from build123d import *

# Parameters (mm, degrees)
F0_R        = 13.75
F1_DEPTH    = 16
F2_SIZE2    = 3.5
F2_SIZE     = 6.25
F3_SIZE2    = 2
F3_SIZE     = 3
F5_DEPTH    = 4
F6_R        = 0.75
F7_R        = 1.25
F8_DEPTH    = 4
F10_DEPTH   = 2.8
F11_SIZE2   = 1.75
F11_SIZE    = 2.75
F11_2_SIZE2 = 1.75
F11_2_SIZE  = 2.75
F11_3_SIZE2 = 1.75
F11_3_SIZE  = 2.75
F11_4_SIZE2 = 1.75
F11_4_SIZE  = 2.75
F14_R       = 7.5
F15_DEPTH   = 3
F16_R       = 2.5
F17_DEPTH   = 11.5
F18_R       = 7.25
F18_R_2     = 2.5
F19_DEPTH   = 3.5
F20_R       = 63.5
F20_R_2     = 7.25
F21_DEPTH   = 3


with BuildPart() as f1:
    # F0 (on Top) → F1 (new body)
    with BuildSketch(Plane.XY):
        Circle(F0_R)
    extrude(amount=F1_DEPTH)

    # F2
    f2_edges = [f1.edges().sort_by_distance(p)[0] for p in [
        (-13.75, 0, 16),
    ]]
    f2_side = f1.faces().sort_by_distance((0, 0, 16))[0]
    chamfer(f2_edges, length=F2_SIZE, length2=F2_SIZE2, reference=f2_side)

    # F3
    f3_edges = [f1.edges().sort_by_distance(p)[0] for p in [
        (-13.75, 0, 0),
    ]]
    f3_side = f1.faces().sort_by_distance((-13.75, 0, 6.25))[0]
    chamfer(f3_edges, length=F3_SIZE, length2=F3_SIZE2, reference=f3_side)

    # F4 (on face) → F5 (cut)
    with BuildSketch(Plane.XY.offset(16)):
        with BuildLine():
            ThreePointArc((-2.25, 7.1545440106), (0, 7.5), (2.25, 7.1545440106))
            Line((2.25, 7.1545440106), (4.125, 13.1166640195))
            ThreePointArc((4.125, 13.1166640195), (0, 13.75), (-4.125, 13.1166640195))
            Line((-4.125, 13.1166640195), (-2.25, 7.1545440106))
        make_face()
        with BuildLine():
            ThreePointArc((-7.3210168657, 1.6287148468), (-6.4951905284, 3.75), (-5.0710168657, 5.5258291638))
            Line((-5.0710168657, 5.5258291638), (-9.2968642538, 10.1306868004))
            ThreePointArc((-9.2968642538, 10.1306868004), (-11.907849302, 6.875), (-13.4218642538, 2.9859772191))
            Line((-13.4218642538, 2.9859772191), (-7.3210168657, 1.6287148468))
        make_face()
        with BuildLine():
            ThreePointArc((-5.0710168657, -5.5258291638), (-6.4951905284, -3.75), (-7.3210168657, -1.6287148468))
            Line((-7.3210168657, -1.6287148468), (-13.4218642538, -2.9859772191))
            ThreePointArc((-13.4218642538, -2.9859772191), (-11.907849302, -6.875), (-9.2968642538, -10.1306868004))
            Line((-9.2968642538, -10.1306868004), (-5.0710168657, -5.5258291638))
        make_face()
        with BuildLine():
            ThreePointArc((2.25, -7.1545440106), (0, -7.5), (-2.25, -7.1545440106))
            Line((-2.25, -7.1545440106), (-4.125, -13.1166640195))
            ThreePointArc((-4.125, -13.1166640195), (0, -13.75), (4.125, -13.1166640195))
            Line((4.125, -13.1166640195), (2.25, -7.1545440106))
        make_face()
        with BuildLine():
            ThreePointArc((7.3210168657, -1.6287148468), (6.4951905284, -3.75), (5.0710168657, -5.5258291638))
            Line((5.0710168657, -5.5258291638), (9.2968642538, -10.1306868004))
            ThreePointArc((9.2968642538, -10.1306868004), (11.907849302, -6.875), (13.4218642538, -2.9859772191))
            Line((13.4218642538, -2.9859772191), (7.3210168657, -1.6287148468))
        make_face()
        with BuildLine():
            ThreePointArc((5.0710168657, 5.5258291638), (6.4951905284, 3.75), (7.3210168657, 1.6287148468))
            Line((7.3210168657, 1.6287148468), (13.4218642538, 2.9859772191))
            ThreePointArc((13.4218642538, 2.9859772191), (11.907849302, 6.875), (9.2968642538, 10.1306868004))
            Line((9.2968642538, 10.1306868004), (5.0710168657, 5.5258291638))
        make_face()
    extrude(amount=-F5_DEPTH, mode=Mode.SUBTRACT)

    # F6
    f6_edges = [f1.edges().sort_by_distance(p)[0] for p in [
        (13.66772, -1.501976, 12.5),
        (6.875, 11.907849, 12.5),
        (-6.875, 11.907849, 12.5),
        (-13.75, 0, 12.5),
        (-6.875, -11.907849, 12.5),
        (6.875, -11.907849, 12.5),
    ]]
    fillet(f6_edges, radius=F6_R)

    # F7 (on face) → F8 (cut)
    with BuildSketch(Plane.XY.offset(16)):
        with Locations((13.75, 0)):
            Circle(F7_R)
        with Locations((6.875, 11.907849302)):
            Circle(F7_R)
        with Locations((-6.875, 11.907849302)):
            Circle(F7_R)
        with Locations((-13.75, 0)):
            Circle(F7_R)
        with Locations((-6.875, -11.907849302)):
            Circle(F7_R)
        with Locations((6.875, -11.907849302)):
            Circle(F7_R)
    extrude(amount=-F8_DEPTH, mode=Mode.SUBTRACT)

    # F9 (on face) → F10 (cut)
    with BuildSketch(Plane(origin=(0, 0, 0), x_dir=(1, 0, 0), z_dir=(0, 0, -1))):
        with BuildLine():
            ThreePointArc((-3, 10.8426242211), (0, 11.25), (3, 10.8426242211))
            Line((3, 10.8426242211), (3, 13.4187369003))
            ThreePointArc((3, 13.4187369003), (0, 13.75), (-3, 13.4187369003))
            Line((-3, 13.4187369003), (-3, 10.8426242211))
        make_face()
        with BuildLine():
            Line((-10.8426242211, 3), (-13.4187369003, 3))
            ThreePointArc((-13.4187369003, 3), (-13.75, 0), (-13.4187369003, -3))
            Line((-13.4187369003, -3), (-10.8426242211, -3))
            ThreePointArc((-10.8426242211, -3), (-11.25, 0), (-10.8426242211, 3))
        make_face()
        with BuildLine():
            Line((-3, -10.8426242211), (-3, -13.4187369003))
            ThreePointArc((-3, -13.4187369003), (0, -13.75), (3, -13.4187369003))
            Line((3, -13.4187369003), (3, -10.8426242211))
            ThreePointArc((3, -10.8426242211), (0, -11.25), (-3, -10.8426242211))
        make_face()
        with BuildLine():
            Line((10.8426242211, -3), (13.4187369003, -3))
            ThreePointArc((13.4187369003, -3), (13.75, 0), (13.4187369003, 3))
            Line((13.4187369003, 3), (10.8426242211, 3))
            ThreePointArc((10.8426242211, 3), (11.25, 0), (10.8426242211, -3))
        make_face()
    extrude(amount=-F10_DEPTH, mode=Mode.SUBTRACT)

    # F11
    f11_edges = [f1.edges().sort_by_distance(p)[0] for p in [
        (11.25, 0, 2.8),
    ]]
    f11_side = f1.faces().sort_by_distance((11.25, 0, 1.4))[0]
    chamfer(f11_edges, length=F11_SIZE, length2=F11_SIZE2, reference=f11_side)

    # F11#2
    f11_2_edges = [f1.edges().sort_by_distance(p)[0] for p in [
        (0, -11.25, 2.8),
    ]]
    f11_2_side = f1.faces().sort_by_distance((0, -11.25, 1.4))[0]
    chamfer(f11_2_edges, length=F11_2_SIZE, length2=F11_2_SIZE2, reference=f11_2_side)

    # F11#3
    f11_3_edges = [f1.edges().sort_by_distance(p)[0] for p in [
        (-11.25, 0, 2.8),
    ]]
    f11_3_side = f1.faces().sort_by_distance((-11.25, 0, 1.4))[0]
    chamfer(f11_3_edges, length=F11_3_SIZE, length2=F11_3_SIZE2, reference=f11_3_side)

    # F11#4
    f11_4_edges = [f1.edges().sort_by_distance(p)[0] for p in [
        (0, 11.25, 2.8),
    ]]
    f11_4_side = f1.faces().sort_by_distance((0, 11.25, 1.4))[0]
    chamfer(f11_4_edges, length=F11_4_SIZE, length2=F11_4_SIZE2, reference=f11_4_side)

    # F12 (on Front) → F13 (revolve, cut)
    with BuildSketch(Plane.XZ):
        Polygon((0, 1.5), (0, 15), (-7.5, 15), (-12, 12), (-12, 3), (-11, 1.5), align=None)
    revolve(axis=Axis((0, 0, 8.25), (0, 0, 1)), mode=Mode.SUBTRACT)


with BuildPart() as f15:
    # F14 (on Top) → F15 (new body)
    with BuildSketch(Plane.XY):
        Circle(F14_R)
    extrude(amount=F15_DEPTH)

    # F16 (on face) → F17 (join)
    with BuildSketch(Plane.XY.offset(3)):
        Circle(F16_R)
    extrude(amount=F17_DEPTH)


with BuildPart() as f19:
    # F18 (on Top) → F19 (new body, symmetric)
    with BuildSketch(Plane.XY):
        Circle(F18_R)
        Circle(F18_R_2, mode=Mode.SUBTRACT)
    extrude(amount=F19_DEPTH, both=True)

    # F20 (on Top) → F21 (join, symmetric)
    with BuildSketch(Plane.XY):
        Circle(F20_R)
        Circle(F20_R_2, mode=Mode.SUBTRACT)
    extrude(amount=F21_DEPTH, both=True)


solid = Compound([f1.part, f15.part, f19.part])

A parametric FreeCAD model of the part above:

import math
import FreeCAD as App
import Part
import Sketcher

V = App.Vector


def edges_at(feature, points):
    """Names of the edges that pass closest to the given points."""
    edges = feature.Shape.Edges
    near = lambda p: min(range(len(edges)), key=lambda i: edges[i].distToShape(Part.Vertex(*p))[0])
    return sorted({f"Edge{near(p) + 1}" for p in points})

doc = App.newDocument("Part")
body = doc.addObject("PartDesign::Body", "Body")

# Sketch on XY plane
sketch1 = doc.addObject("Sketcher::SketchObject", "Sketch")
body.addObject(sketch1)
sketch1.AttachmentSupport = (doc.XY_Plane, [""])
sketch1.MapMode = "FlatFace"
sketch1.addGeometry(Part.Circle(V(0, 0, 0), V(0, 0, 1), 14), False)
sketch1.addConstraint([
    Sketcher.Constraint("Coincident", 0, 3, -1, 1),
    Sketcher.Constraint("Diameter", 0, 27.5),
])
pad1 = doc.addObject("PartDesign::Pad", "Pad")
body.addObject(pad1)
pad1.Profile = sketch1
pad1.Length = 16
doc.recompute()

chamfer = doc.addObject("PartDesign::Chamfer", "Chamfer")
body.addObject(chamfer)
chamfer.Base = (pad1, edges_at(pad1, [(-13.75, 0, 16)]))
chamfer.ChamferType = "Two distances"
chamfer.Size = 6.25
chamfer.Size2 = 3.5
chamfer.FlipDirection = True
doc.recompute()

chamfer2 = doc.addObject("PartDesign::Chamfer", "Chamfer001")
body.addObject(chamfer2)
chamfer2.Base = (chamfer, edges_at(chamfer, [(-13.75, 0, 0)]))
chamfer2.ChamferType = "Two distances"
chamfer2.Size = 3
chamfer2.Size2 = 2

# Sketch on XY plane
sketch2 = doc.addObject("Sketcher::SketchObject", "Sketch001")
body.addObject(sketch2)
sketch2.AttachmentSupport = (doc.XY_Plane, [""])
sketch2.MapMode = "FlatFace"
sketch2.AttachmentOffset = App.Placement(V(0, 0, 16), App.Rotation())
sketch2.addGeometry([
    Part.ArcOfCircle(Part.Circle(V(0, 0, 0), V(0, 0, 1), 7.5), math.radians(73), math.radians(107)),  # 0
    Part.LineSegment(V(2.2, 7.2, 0), V(4.1, 13.1, 0)),  # 1
    Part.ArcOfCircle(Part.Circle(V(0, 0, 0), V(0, 0, 1), 13.8), math.radians(73), math.radians(107)),  # 2
    Part.LineSegment(V(-4.1, 13.1, 0), V(-2.2, 7.2, 0)),  # 3
    Part.ArcOfCircle(Part.Circle(V(0, 0, 0), V(0, 0, 1), 7.5), math.radians(133), math.radians(167)),  # 4
    Part.LineSegment(V(-5.1, 5.5, 0), V(-9.3, 10.1, 0)),  # 5
    Part.ArcOfCircle(Part.Circle(V(0, 0, 0), V(0, 0, 1), 13.8), math.radians(133), math.radians(167)),  # 6
    Part.LineSegment(V(-13.4, 3, 0), V(-7.3, 1.6, 0)),  # 7
    Part.ArcOfCircle(Part.Circle(V(0, 0, 0), V(0, 0, 1), 7.5), math.radians(-167), math.radians(-133)),  # 8
    Part.LineSegment(V(-7.3, -1.6, 0), V(-13.4, -3, 0)),  # 9
    Part.ArcOfCircle(Part.Circle(V(0, 0, 0), V(0, 0, 1), 13.8), math.radians(-167), math.radians(-133)),  # 10
    Part.LineSegment(V(-9.3, -10.1, 0), V(-5.1, -5.5, 0)),  # 11
    Part.ArcOfCircle(Part.Circle(V(0, 0, 0), V(0, 0, 1), 7.5), math.radians(-107), math.radians(-73)),  # 12
    Part.LineSegment(V(-2.2, -7.2, 0), V(-4.1, -13.1, 0)),  # 13
    Part.ArcOfCircle(Part.Circle(V(0, 0, 0), V(0, 0, 1), 13.8), math.radians(-107), math.radians(-73)),  # 14
    Part.LineSegment(V(4.1, -13.1, 0), V(2.2, -7.2, 0)),  # 15
    Part.ArcOfCircle(Part.Circle(V(0, 0, 0), V(0, 0, 1), 7.5), math.radians(-47), math.radians(-13)),  # 16
    Part.LineSegment(V(5.1, -5.5, 0), V(9.3, -10.1, 0)),  # 17
    Part.ArcOfCircle(Part.Circle(V(0, 0, 0), V(0, 0, 1), 13.8), math.radians(-47), math.radians(-13)),  # 18
    Part.LineSegment(V(13.4, -3, 0), V(7.3, -1.6, 0)),  # 19
    Part.ArcOfCircle(Part.Circle(V(0, 0, 0), V(0, 0, 1), 7.5), math.radians(13), math.radians(47)),  # 20
    Part.LineSegment(V(7.3, 1.6, 0), V(13.4, 3, 0)),  # 21
    Part.ArcOfCircle(Part.Circle(V(0, 0, 0), V(0, 0, 1), 13.8), math.radians(13), math.radians(47)),  # 22
    Part.LineSegment(V(9.3, 10.1, 0), V(5.1, 5.5, 0)),  # 23
], False)
sketch2.addConstraint([
    Sketcher.Constraint("Coincident", 0, 1, 1, 1),
    Sketcher.Constraint("Coincident", 1, 2, 2, 1),
    Sketcher.Constraint("Coincident", 2, 2, 3, 1),
    Sketcher.Constraint("Coincident", 3, 2, 0, 2),
    Sketcher.Constraint("Coincident", 4, 1, 5, 1),
    Sketcher.Constraint("Coincident", 5, 2, 6, 1),
    Sketcher.Constraint("Coincident", 6, 2, 7, 1),
    Sketcher.Constraint("Coincident", 7, 2, 4, 2),
    Sketcher.Constraint("Coincident", 8, 1, 9, 1),
    Sketcher.Constraint("Coincident", 9, 2, 10, 1),
    Sketcher.Constraint("Coincident", 10, 2, 11, 1),
    Sketcher.Constraint("Coincident", 11, 2, 8, 2),
    Sketcher.Constraint("Coincident", 12, 1, 13, 1),
    Sketcher.Constraint("Coincident", 13, 2, 14, 1),
    Sketcher.Constraint("Coincident", 14, 2, 15, 1),
    Sketcher.Constraint("Coincident", 15, 2, 12, 2),
    Sketcher.Constraint("Coincident", 16, 1, 17, 1),
    Sketcher.Constraint("Coincident", 17, 2, 18, 1),
    Sketcher.Constraint("Coincident", 18, 2, 19, 1),
    Sketcher.Constraint("Coincident", 19, 2, 16, 2),
    Sketcher.Constraint("Coincident", 20, 1, 21, 1),
    Sketcher.Constraint("Coincident", 21, 2, 22, 1),
    Sketcher.Constraint("Coincident", 22, 2, 23, 1),
    Sketcher.Constraint("Coincident", 23, 2, 20, 2),
    Sketcher.Constraint("Coincident", 0, 3, -1, 1),
    Sketcher.Constraint("Coincident", 2, 3, -1, 1),
    Sketcher.Constraint("Coincident", 4, 3, -1, 1),
    Sketcher.Constraint("Coincident", 6, 3, -1, 1),
    Sketcher.Constraint("Coincident", 8, 3, -1, 1),
    Sketcher.Constraint("Coincident", 10, 3, -1, 1),
    Sketcher.Constraint("Coincident", 12, 3, -1, 1),
    Sketcher.Constraint("Coincident", 14, 3, -1, 1),
    Sketcher.Constraint("Coincident", 16, 3, -1, 1),
    Sketcher.Constraint("Coincident", 18, 3, -1, 1),
    Sketcher.Constraint("Coincident", 20, 3, -1, 1),
    Sketcher.Constraint("Coincident", 22, 3, -1, 1),
    Sketcher.Constraint("Equal", 0, 4),
    Sketcher.Constraint("Equal", 2, 6),
    Sketcher.Constraint("Equal", 4, 8),
    Sketcher.Constraint("Equal", 6, 10),
    Sketcher.Constraint("Equal", 8, 12),
    Sketcher.Constraint("Equal", 10, 14),
    Sketcher.Constraint("Equal", 12, 16),
    Sketcher.Constraint("Equal", 14, 18),
    Sketcher.Constraint("Equal", 16, 20),
    Sketcher.Constraint("Equal", 18, 22),
    Sketcher.Constraint("Parallel", 1, 13),
    Sketcher.Constraint("Parallel", 3, 15),
    Sketcher.Constraint("Parallel", 5, 17),
    Sketcher.Constraint("Parallel", 7, 19),
    Sketcher.Constraint("Parallel", 9, 21),
    Sketcher.Constraint("Parallel", 11, 23),
    Sketcher.Constraint("Horizontal", 1, 2, 2, 2),
    Sketcher.Constraint("Horizontal", 0, 1, 3, 2),
    Sketcher.Constraint("Horizontal", 13, 2, 14, 2),
    Sketcher.Constraint("Horizontal", 11, 2, 16, 1),
    Sketcher.Constraint("Horizontal", 10, 2, 17, 2),
    Sketcher.Constraint("Horizontal", 9, 2, 18, 2),
    Sketcher.Constraint("Horizontal", 8, 1, 19, 2),
    Sketcher.Constraint("Horizontal", 7, 2, 20, 1),
    Sketcher.Constraint("Horizontal", 5, 2, 22, 2),
    Sketcher.Constraint("Vertical", 7, 2, 8, 1),
    Sketcher.Constraint("Vertical", 5, 2, 10, 2),
    Sketcher.Constraint("Vertical", 3, 2, 12, 1),
    Sketcher.Constraint("Radius", 0, 7.5),
    Sketcher.Constraint("Radius", 2, 13.75),
    Sketcher.Constraint("DistanceX", 3, 2, 0, 1, 4.5),
    Sketcher.Constraint("DistanceX", 2, 2, 1, 2, 8.25),
    Sketcher.Constraint("DistanceX", 7, 2, 4, 1, 2.25),
    Sketcher.Constraint("DistanceX", 6, 2, 5, 2, 4.125),
    Sketcher.Constraint("DistanceY", 10, 2, 7, 2, 11.759402),
    Sketcher.Constraint("DistanceY", -1, 1, 4, 1, 5.525829),
])
pocket1 = doc.addObject("PartDesign::Pocket", "Pocket")
body.addObject(pocket1)
pocket1.Profile = sketch2
pocket1.Length = 4
doc.recompute()

fillet = doc.addObject("PartDesign::Fillet", "Fillet")
body.addObject(fillet)
fillet.Base = (pocket1, edges_at(pocket1, [
    (13.668, -1.502, 12.5),
    (6.875, 11.908, 12.5),
    (-6.875, 11.908, 12.5),
    (-13.75, 0, 12.5),
    (-6.875, -11.908, 12.5),
    (6.875, -11.908, 12.5),
]))
fillet.Radius = 0.75

# Sketch on XY plane
sketch3 = doc.addObject("Sketcher::SketchObject", "Sketch002")
body.addObject(sketch3)
sketch3.AttachmentSupport = (doc.XY_Plane, [""])
sketch3.MapMode = "FlatFace"
sketch3.AttachmentOffset = App.Placement(V(0, 0, 16), App.Rotation())
sketch3.addGeometry([
    Part.Circle(V(13.8, 0, 0), V(0, 0, 1), 1.2),  # 0
    Part.Circle(V(6.9, 11.9, 0), V(0, 0, 1), 1.2),  # 1
    Part.Circle(V(-6.9, 11.9, 0), V(0, 0, 1), 1.2),  # 2
    Part.Circle(V(-13.8, 0, 0), V(0, 0, 1), 1.2),  # 3
    Part.Circle(V(-6.9, -11.9, 0), V(0, 0, 1), 1.2),  # 4
    Part.Circle(V(6.9, -11.9, 0), V(0, 0, 1), 1.2),  # 5
], False)
sketch3.addConstraint([
    Sketcher.Constraint("Equal", 0, 1),
    Sketcher.Constraint("Equal", 1, 2),
    Sketcher.Constraint("Equal", 2, 3),
    Sketcher.Constraint("Equal", 3, 4),
    Sketcher.Constraint("Equal", 4, 5),
    Sketcher.Constraint("Symmetric", 0, 3, 3, 3, -1, 1),
    Sketcher.Constraint("Symmetric", 1, 3, 4, 3, -1, 1),
    Sketcher.Constraint("Symmetric", 2, 3, 5, 3, -1, 1),
    Sketcher.Constraint("Symmetric", 1, 3, 2, 3, -2),
    Sketcher.Constraint("PointOnObject", 0, 3, -1),
    Sketcher.Constraint("Diameter", 0, 2.5),
    Sketcher.Constraint("DistanceX", 3, 3, 0, 3, 27.5),
    Sketcher.Constraint("DistanceX", 2, 3, 1, 3, 13.75),
    Sketcher.Constraint("DistanceY", 4, 3, 2, 3, 23.815699),
])
pocket2 = doc.addObject("PartDesign::Pocket", "Pocket001")
body.addObject(pocket2)
pocket2.Profile = sketch3
pocket2.Length = 4

# Sketch on XY plane
sketch4 = doc.addObject("Sketcher::SketchObject", "Sketch003")
body.addObject(sketch4)
sketch4.AttachmentSupport = (doc.XY_Plane, [""])
sketch4.MapMode = "FlatFace"
sketch4.addGeometry([
    Part.ArcOfCircle(Part.Circle(V(0, 0, 0), V(0, 0, 1), 11.2), math.radians(-105), math.radians(-75)),  # 0
    Part.LineSegment(V(3, -10.8, 0), V(3, -13.4, 0)),  # 1
    Part.ArcOfCircle(Part.Circle(V(0, 0, 0), V(0, 0, 1), 13.7), math.radians(-103), math.radians(-77)),  # 2
    Part.LineSegment(V(-3, -13.4, 0), V(-3, -10.8, 0)),  # 3
    Part.LineSegment(V(-10.8, -3, 0), V(-13.4, -3, 0)),  # 4
    Part.ArcOfCircle(Part.Circle(V(0, 0, 0), V(0, 0, 1), 13.7), math.radians(167), math.radians(193)),  # 5
    Part.LineSegment(V(-13.4, 3, 0), V(-10.8, 3, 0)),  # 6
    Part.ArcOfCircle(Part.Circle(V(0, 0, 0), V(0, 0, 1), 11.2), math.radians(165), math.radians(195)),  # 7
    Part.LineSegment(V(-3, 10.8, 0), V(-3, 13.4, 0)),  # 8
    Part.ArcOfCircle(Part.Circle(V(0, 0, 0), V(0, 0, 1), 13.7), math.radians(77), math.radians(103)),  # 9
    Part.LineSegment(V(3, 13.4, 0), V(3, 10.8, 0)),  # 10
    Part.ArcOfCircle(Part.Circle(V(0, 0, 0), V(0, 0, 1), 11.2), math.radians(75), math.radians(105)),  # 11
    Part.LineSegment(V(10.8, 3, 0), V(13.4, 3, 0)),  # 12
    Part.ArcOfCircle(Part.Circle(V(0, 0, 0), V(0, 0, 1), 13.7), math.radians(-13), math.radians(13)),  # 13
    Part.LineSegment(V(13.4, -3, 0), V(10.8, -3, 0)),  # 14
    Part.ArcOfCircle(Part.Circle(V(0, 0, 0), V(0, 0, 1), 11.2), math.radians(-15), math.radians(15)),  # 15
], False)
sketch4.addConstraint([
    Sketcher.Constraint("Coincident", 0, 2, 1, 1),
    Sketcher.Constraint("Coincident", 1, 2, 2, 2),
    Sketcher.Constraint("Coincident", 2, 1, 3, 1),
    Sketcher.Constraint("Coincident", 3, 2, 0, 1),
    Sketcher.Constraint("Coincident", 4, 2, 5, 2),
    Sketcher.Constraint("Coincident", 5, 1, 6, 1),
    Sketcher.Constraint("Coincident", 6, 2, 7, 1),
    Sketcher.Constraint("Coincident", 7, 2, 4, 1),
    Sketcher.Constraint("Coincident", 8, 2, 9, 2),
    Sketcher.Constraint("Coincident", 9, 1, 10, 1),
    Sketcher.Constraint("Coincident", 10, 2, 11, 1),
    Sketcher.Constraint("Coincident", 11, 2, 8, 1),
    Sketcher.Constraint("Coincident", 12, 2, 13, 2),
    Sketcher.Constraint("Coincident", 13, 1, 14, 1),
    Sketcher.Constraint("Coincident", 14, 2, 15, 1),
    Sketcher.Constraint("Coincident", 15, 2, 12, 1),
    Sketcher.Constraint("Vertical", 1),
    Sketcher.Constraint("Vertical", 3),
    Sketcher.Constraint("Horizontal", 4),
    Sketcher.Constraint("Horizontal", 6),
    Sketcher.Constraint("Vertical", 8),
    Sketcher.Constraint("Vertical", 10),
    Sketcher.Constraint("Horizontal", 12),
    Sketcher.Constraint("Horizontal", 14),
    Sketcher.Constraint("Coincident", 0, 3, -1, 1),
    Sketcher.Constraint("Coincident", 2, 3, -1, 1),
    Sketcher.Constraint("Coincident", 5, 3, -1, 1),
    Sketcher.Constraint("Coincident", 7, 3, -1, 1),
    Sketcher.Constraint("Coincident", 9, 3, -1, 1),
    Sketcher.Constraint("Coincident", 11, 3, -1, 1),
    Sketcher.Constraint("Coincident", 13, 3, -1, 1),
    Sketcher.Constraint("Coincident", 15, 3, -1, 1),
    Sketcher.Constraint("Equal", 2, 5),
    Sketcher.Constraint("Equal", 0, 7),
    Sketcher.Constraint("Equal", 5, 9),
    Sketcher.Constraint("Equal", 7, 11),
    Sketcher.Constraint("Equal", 9, 13),
    Sketcher.Constraint("Equal", 11, 15),
    Sketcher.Constraint("Horizontal", 1, 2, 2, 1),
    Sketcher.Constraint("Horizontal", 8, 2, 9, 1),
    Sketcher.Constraint("Horizontal", 6, 2, 12, 2),
    Sketcher.Constraint("Horizontal", 7, 2, 13, 1),
    Sketcher.Constraint("Vertical", 4, 2, 5, 1),
    Sketcher.Constraint("Vertical", 3, 2, 8, 2),
    Sketcher.Constraint("Equal", 14, 1),
    Sketcher.Constraint("Radius", 0, 11.25),
    Sketcher.Constraint("Radius", 2, 13.75),
    Sketcher.Constraint("DistanceX", -1, 1, 0, 2, 3.0),
])
pocket3 = doc.addObject("PartDesign::Pocket", "Pocket002")
body.addObject(pocket3)
pocket3.Profile = sketch4
pocket3.Length = 2.8
pocket3.Reversed = True
doc.recompute()

chamfer3 = doc.addObject("PartDesign::Chamfer", "Chamfer002")
body.addObject(chamfer3)
chamfer3.Base = (pocket3, edges_at(pocket3, [(11.25, 0, 2.8)]))
chamfer3.ChamferType = "Two distances"
chamfer3.Size = 2.75
chamfer3.Size2 = 1.75
chamfer3.FlipDirection = True
doc.recompute()

chamfer4 = doc.addObject("PartDesign::Chamfer", "Chamfer003")
body.addObject(chamfer4)
chamfer4.Base = (chamfer3, edges_at(chamfer3, [(0, -11.25, 2.8)]))
chamfer4.ChamferType = "Two distances"
chamfer4.Size = 2.75
chamfer4.Size2 = 1.75
chamfer4.FlipDirection = True
doc.recompute()

chamfer5 = doc.addObject("PartDesign::Chamfer", "Chamfer004")
body.addObject(chamfer5)
chamfer5.Base = (chamfer4, edges_at(chamfer4, [(-11.25, 0, 2.8)]))
chamfer5.ChamferType = "Two distances"
chamfer5.Size = 2.75
chamfer5.Size2 = 1.75
doc.recompute()

chamfer6 = doc.addObject("PartDesign::Chamfer", "Chamfer005")
body.addObject(chamfer6)
chamfer6.Base = (chamfer5, edges_at(chamfer5, [(0, 11.25, 2.8)]))
chamfer6.ChamferType = "Two distances"
chamfer6.Size = 2.75
chamfer6.Size2 = 1.75
chamfer6.FlipDirection = True

# Sketch on XZ plane
sketch5 = doc.addObject("Sketcher::SketchObject", "Sketch004")
body.addObject(sketch5)
sketch5.AttachmentSupport = (doc.XZ_Plane, [""])
sketch5.MapMode = "FlatFace"
sketch5.addGeometry([
    Part.LineSegment(V(0, 1.5, 0), V(0, 15, 0)),  # 0
    Part.LineSegment(V(0, 15, 0), V(-7.5, 15, 0)),  # 1
    Part.LineSegment(V(-7.5, 15, 0), V(-12, 12, 0)),  # 2
    Part.LineSegment(V(-12, 12, 0), V(-12, 3, 0)),  # 3
    Part.LineSegment(V(-12, 3, 0), V(-11, 1.5, 0)),  # 4
    Part.LineSegment(V(-11, 1.5, 0), V(0, 1.5, 0)),  # 5
], False)
sketch5.addConstraint([
    Sketcher.Constraint("Coincident", 0, 2, 1, 1),
    Sketcher.Constraint("Coincident", 1, 2, 2, 1),
    Sketcher.Constraint("Coincident", 2, 2, 3, 1),
    Sketcher.Constraint("Coincident", 3, 2, 4, 1),
    Sketcher.Constraint("Coincident", 4, 2, 5, 1),
    Sketcher.Constraint("Coincident", 5, 2, 0, 1),
    Sketcher.Constraint("Vertical", 0),
    Sketcher.Constraint("Horizontal", 1),
    Sketcher.Constraint("Vertical", 3),
    Sketcher.Constraint("Horizontal", 5),
    Sketcher.Constraint("PointOnObject", 0, 2, -2),
    Sketcher.Constraint("Perpendicular", 2, 4),
    Sketcher.Constraint("DistanceX", 5, 1, 5, 2, 11.0),
    Sketcher.Constraint("DistanceY", 3, 2, 3, 1, 9.0),
    Sketcher.Constraint("DistanceX", 1, 2, 1, 1, 7.5),
    Sketcher.Constraint("DistanceY", 0, 1, 0, 2, 13.5),
    Sketcher.Constraint("DistanceY", -1, 1, 0, 2, 15.0),
    Sketcher.Constraint("DistanceX", 2, 2, -1, 1, 12.0),
])
groove = doc.addObject("PartDesign::Groove", "Groove")
body.addObject(groove)
groove.Profile = sketch5
groove.ReferenceAxis = (sketch5, ["V_Axis"])
groove.Angle = 360
body2 = doc.addObject("PartDesign::Body", "Body001")

# Sketch on XY plane
sketch6 = doc.addObject("Sketcher::SketchObject", "Sketch005")
body2.addObject(sketch6)
sketch6.AttachmentSupport = (doc.getObject("XY_Plane001"), [""])
sketch6.MapMode = "FlatFace"
sketch6.addGeometry(Part.Circle(V(0, 0, 0), V(0, 0, 1), 8), False)
sketch6.addConstraint([
    Sketcher.Constraint("Coincident", 0, 3, -1, 1),
    Sketcher.Constraint("Diameter", 0, 15.0),
])
pad2 = doc.addObject("PartDesign::Pad", "Pad001")
body2.addObject(pad2)
pad2.Profile = sketch6
pad2.Length = 3

# Sketch on XY plane
sketch7 = doc.addObject("Sketcher::SketchObject", "Sketch006")
body2.addObject(sketch7)
sketch7.AttachmentSupport = (doc.getObject("XY_Plane001"), [""])
sketch7.MapMode = "FlatFace"
sketch7.AttachmentOffset = App.Placement(V(0, 0, 3), App.Rotation())
sketch7.addGeometry(Part.Circle(V(0, 0, 0), V(0, 0, 1), 2.5), False)
sketch7.addConstraint([
    Sketcher.Constraint("Coincident", 0, 3, -1, 1),
    Sketcher.Constraint("Diameter", 0, 5.0),
])
pad3 = doc.addObject("PartDesign::Pad", "Pad002")
body2.addObject(pad3)
pad3.Profile = sketch7
pad3.Length = 11.5
body3 = doc.addObject("PartDesign::Body", "Body002")

# Sketch on XY plane
sketch8 = doc.addObject("Sketcher::SketchObject", "Sketch007")
body3.addObject(sketch8)
sketch8.AttachmentSupport = (doc.getObject("XY_Plane002"), [""])
sketch8.MapMode = "FlatFace"
sketch8.addGeometry([
    Part.Circle(V(0, 0, 0), V(0, 0, 1), 7.2),
    Part.Circle(V(0, 0, 0), V(0, 0, 1), 2.5),
], False)
sketch8.addConstraint([
    Sketcher.Constraint("Coincident", 0, 3, -1, 1),
    Sketcher.Constraint("Coincident", 1, 3, -1, 1),
    Sketcher.Constraint("Diameter", 1, 5.0),
    Sketcher.Constraint("Diameter", 0, 14.5),
])
pad4 = doc.addObject("PartDesign::Pad", "Pad003")
body3.addObject(pad4)
pad4.Profile = sketch8
pad4.Length = 7
pad4.Midplane = True

# Sketch on XY plane
sketch9 = doc.addObject("Sketcher::SketchObject", "Sketch008")
body3.addObject(sketch9)
sketch9.AttachmentSupport = (doc.getObject("XY_Plane002"), [""])
sketch9.MapMode = "FlatFace"
sketch9.addGeometry([
    Part.Circle(V(0, 0, 0), V(0, 0, 1), 64),
    Part.Circle(V(0, 0, 0), V(0, 0, 1), 7),
], False)
sketch9.addConstraint([
    Sketcher.Constraint("Coincident", 0, 3, -1, 1),
    Sketcher.Constraint("Coincident", 1, 3, -1, 1),
    Sketcher.Constraint("Diameter", 0, 127.0),
    Sketcher.Constraint("Diameter", 1, 14.5),
])
pad5 = doc.addObject("PartDesign::Pad", "Pad004")
body3.addObject(pad5)
pad5.Profile = sketch9
pad5.Length = 6
pad5.Midplane = True

doc.recompute()
